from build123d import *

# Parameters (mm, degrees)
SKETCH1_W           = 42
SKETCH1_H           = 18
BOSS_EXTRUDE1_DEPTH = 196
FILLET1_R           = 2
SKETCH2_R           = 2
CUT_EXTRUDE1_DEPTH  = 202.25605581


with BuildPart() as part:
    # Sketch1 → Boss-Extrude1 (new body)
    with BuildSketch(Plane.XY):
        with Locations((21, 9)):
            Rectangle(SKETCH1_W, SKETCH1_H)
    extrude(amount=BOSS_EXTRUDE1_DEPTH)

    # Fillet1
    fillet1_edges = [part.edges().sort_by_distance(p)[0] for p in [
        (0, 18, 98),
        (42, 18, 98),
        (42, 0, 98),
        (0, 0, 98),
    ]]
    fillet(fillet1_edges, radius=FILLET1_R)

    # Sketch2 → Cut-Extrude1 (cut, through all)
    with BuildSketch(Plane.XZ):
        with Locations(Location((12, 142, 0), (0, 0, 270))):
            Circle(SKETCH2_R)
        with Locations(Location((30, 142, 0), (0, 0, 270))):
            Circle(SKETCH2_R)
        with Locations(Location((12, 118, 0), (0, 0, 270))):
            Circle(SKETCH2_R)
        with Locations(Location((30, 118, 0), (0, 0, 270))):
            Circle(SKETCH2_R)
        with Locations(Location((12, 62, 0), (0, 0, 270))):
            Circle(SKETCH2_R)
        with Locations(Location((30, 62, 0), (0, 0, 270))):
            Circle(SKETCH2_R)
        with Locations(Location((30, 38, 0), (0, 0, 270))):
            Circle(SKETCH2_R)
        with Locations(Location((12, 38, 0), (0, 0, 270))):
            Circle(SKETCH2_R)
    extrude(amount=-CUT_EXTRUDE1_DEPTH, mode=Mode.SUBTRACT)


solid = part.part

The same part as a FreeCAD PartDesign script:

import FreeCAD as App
import Part
import Sketcher

V = App.Vector
Q = App.Units.Quantity


def edges_at(feature, points):
    """Names of the edges that pass closest to the given points."""
    edges = feature.Shape.Edges
    near = lambda p: min(range(len(edges)), key=lambda i: edges[i].distToShape(Part.Vertex(*p))[0])
    return sorted({f"Edge{near(p) + 1}" for p in points})

doc = App.newDocument("Part")
params = doc.addObject("Spreadsheet::Sheet", "Params")
for row, (alias, value) in enumerate([
    ("sketch1_width", "42 mm"),
    ("sketch1_height", "18 mm"),
    ("pad1_length", "196 mm"),
    ("fillet_radius", "2 mm"),
    ("sketch2_diameter", "4 mm"),
], start=1):
    params.set(f"A{row}", alias)
    params.set(f"B{row}", "=" + value)
    params.setAlias(f"B{row}", alias)

body = doc.addObject("PartDesign::Body", "Body")

sketch1 = body.newObject("Sketcher::SketchObject", "Sketch")
sketch1.AttachmentSupport = (doc.getObject("XY_Plane"), [""])
sketch1.MapMode = "FlatFace"
sketch1.addGeometry([
    Part.LineSegment(V(0, 18, 0), V(0, 0, 0)),
    Part.LineSegment(V(0, 0, 0), V(42, 0, 0)),
    Part.LineSegment(V(42, 0, 0), V(42, 18, 0)),
    Part.LineSegment(V(42, 18, 0), V(0, 18, 0)),
], False)
sketch1.addConstraint([
    Sketcher.Constraint("Coincident", 0, 2, 1, 1),
    Sketcher.Constraint("Coincident", 1, 2, 2, 1),
    Sketcher.Constraint("Coincident", 2, 2, 3, 1),
    Sketcher.Constraint("Coincident", 3, 2, 0, 1),
    Sketcher.Constraint("Vertical", 0),
    Sketcher.Constraint("Horizontal", 1),
    Sketcher.Constraint("Vertical", 2),
    Sketcher.Constraint("Horizontal", 3),
    Sketcher.Constraint("Coincident", 0, 2, -1, 1),
    Sketcher.Constraint("DistanceX", 1, 1, 1, 2, Q("42 mm")),
    Sketcher.Constraint("DistanceY", 0, 2, 0, 1, Q("18 mm")),
])
sketch1.setExpression("Constraints[9]", "Params.sketch1_width")
sketch1.setExpression("Constraints[10]", "Params.sketch1_height")
pad1 = body.newObject("PartDesign::Pad", "Pad")
pad1.Profile = sketch1
pad1.setExpression("Length", "Params.pad1_length")
doc.recompute()

fillet = body.newObject("PartDesign::Fillet", "Fillet")
fillet.Base = (pad1, edges_at(pad1, [
    (0, 18, 98),
    (42, 18, 98),
    (42, 0, 98),
    (0, 0, 98),
]))
fillet.setExpression("Radius", "Params.fillet_radius")

sketch2 = body.newObject("Sketcher::SketchObject", "Sketch001")
sketch2.AttachmentSupport = (doc.getObject("XZ_Plane"), [""])
sketch2.MapMode = "FlatFace"
sketch2.addGeometry([
    Part.Circle(V(12, 142, 0), V(0, 0, 1), 2),
    Part.Circle(V(30, 142, 0), V(0, 0, 1), 2),
    Part.Circle(V(12, 118, 0), V(0, 0, 1), 2),
    Part.Circle(V(30, 118, 0), V(0, 0, 1), 2),
    Part.Circle(V(12, 62, 0), V(0, 0, 1), 2),
    Part.Circle(V(30, 62, 0), V(0, 0, 1), 2),
    Part.Circle(V(30, 38, 0), V(0, 0, 1), 2),
    Part.Circle(V(12, 38, 0), V(0, 0, 1), 2),
], False)
sketch2.addConstraint([
    Sketcher.Constraint("Equal", 0, 1),
    Sketcher.Constraint("Equal", 1, 2),
    Sketcher.Constraint("Equal", 2, 3),
    Sketcher.Constraint("Equal", 3, 4),
    Sketcher.Constraint("Equal", 4, 5),
    Sketcher.Constraint("Equal", 5, 6),
    Sketcher.Constraint("Equal", 6, 7),
    Sketcher.Constraint("Horizontal", 0, 3, 1, 3),
    Sketcher.Constraint("Horizontal", 2, 3, 3, 3),
    Sketcher.Constraint("Horizontal", 4, 3, 5, 3),
    Sketcher.Constraint("Horizontal", 6, 3, 7, 3),
    Sketcher.Constraint("Vertical", 0, 3, 2, 3),
    Sketcher.Constraint("Vertical", 1, 3, 3, 3),
    Sketcher.Constraint("Vertical", 2, 3, 4, 3),
    Sketcher.Constraint("Vertical", 3, 3, 5, 3),
    Sketcher.Constraint("Vertical", 5, 3, 6, 3),
    Sketcher.Constraint("Vertical", 4, 3, 7, 3),
    Sketcher.Constraint("Diameter", 0, Q("4 mm")),
    Sketcher.Constraint("DistanceX", -1, 1, 0, 3, Q("12 mm")),
    Sketcher.Constraint("DistanceY", -1, 1, 0, 3, Q("142 mm")),
    Sketcher.Constraint("DistanceX", -1, 1, 1, 3, Q("30 mm")),
    Sketcher.Constraint("DistanceY", -1, 1, 2, 3, Q("118 mm")),
    Sketcher.Constraint("DistanceY", -1, 1, 4, 3, Q("62 mm")),
    Sketcher.Constraint("DistanceY", -1, 1, 6, 3, Q("38 mm")),
])
sketch2.setExpression("Constraints[17]", "Params.sketch2_diameter")
pocket1 = body.newObject("PartDesign::Pocket", "Pocket")
pocket1.Profile = sketch2
pocket1.Type = "ThroughAll"

doc.recompute()
